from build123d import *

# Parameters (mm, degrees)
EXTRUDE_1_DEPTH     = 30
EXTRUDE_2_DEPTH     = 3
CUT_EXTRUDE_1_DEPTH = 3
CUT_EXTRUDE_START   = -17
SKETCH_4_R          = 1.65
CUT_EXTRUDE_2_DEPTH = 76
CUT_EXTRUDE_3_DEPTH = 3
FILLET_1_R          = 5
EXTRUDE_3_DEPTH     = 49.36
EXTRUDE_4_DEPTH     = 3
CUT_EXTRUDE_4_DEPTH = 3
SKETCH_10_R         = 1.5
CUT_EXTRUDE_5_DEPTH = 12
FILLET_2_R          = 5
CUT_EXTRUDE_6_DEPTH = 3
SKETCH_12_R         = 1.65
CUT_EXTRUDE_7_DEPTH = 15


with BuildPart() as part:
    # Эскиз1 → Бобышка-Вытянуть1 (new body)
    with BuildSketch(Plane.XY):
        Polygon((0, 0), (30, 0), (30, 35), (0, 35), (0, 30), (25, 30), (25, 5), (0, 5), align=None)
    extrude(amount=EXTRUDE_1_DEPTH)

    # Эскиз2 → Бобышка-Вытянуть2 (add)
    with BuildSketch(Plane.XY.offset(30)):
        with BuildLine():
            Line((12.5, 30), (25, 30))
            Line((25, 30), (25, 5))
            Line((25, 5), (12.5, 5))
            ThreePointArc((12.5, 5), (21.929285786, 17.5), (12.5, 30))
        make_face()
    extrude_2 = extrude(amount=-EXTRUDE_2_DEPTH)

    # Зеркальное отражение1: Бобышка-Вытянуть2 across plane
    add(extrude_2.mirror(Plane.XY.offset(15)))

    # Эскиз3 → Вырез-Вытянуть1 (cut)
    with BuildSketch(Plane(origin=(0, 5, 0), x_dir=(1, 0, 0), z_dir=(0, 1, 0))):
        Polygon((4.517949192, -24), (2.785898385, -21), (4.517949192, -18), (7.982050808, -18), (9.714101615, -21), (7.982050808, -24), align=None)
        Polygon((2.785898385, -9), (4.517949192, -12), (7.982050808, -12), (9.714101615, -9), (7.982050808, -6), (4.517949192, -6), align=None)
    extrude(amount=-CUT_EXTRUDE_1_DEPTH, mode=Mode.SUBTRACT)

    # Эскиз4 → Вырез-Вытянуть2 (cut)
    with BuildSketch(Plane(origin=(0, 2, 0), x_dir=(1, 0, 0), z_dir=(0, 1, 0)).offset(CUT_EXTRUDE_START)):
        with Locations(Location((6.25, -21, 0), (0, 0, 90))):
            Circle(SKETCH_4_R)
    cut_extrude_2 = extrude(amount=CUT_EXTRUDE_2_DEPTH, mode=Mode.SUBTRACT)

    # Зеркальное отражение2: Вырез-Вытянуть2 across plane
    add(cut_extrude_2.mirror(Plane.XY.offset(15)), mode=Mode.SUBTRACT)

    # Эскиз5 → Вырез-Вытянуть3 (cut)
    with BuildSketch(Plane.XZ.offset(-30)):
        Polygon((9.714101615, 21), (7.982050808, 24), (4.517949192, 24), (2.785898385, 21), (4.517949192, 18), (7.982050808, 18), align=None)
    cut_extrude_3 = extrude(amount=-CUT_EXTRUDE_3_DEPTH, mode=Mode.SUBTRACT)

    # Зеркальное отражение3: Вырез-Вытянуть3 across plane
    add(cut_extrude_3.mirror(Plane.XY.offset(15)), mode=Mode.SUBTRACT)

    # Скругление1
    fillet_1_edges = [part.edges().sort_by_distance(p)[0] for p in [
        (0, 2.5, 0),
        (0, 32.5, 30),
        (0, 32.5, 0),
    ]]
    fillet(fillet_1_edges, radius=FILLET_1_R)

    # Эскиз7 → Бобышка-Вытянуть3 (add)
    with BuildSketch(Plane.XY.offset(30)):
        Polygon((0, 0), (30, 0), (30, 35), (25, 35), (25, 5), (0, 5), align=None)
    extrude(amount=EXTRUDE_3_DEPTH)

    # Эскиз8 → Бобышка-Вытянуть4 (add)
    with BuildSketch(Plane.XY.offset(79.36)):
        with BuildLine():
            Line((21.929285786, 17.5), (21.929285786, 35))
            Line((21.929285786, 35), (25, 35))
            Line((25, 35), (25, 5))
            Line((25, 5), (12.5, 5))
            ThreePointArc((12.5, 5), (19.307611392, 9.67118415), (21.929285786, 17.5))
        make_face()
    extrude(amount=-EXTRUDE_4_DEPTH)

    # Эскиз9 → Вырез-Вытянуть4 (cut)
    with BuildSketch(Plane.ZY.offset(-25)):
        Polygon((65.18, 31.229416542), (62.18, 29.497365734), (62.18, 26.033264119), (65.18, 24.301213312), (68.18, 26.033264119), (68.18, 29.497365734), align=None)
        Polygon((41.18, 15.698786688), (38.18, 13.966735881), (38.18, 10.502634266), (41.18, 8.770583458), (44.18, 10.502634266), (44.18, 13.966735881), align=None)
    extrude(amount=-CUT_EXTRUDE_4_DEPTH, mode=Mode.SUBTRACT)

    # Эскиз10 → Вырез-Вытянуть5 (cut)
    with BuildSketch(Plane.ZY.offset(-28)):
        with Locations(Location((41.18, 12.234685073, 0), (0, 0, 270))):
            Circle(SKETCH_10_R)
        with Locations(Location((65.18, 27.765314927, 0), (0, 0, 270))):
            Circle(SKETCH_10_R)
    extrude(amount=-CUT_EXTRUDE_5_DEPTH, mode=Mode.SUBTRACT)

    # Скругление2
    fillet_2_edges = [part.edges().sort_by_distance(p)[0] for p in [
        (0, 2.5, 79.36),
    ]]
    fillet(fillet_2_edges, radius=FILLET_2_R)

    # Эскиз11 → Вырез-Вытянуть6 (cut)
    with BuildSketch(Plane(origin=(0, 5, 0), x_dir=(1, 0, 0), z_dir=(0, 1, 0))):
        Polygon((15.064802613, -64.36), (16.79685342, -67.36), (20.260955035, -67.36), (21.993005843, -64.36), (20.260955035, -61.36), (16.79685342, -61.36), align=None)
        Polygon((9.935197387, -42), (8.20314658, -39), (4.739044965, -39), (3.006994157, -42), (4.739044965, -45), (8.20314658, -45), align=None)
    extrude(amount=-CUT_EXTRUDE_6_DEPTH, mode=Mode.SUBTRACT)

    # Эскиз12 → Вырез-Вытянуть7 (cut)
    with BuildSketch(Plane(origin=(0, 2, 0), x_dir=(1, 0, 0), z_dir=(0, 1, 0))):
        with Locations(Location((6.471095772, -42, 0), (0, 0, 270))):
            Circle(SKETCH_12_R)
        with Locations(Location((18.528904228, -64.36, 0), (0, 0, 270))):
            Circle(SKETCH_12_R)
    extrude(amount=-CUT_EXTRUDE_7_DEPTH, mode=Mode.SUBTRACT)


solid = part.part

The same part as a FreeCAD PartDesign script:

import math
import FreeCAD as App
import Part
import Sketcher
from FreeCAD import Vector
Q = App.Units.Quantity


def edges_at(feature, points):
    """Names of the edges that pass closest to the given points."""
    edges = feature.Shape.Edges
    near = lambda p: min(range(len(edges)), key=lambda i: edges[i].distToShape(Part.Vertex(*p))[0])
    return sorted({f"Edge{near(p) + 1}" for p in points})

doc = App.newDocument("Part")
params = doc.addObject("Spreadsheet::Sheet", "Params")
for row, (alias, value) in enumerate([
    ("sketch1_width", "30 mm"),
    ("sketch1_width2", "25 mm"),
    ("sketch1_height", "35 mm"),
    ("pad1_length", "30 mm"),
    ("sketch2_radius", "13 mm"),
    ("sketch2_height", "25 mm"),
    ("sketch2_width", "12.5 mm"),
    ("pad2_length", "3 mm"),
    ("pocket1_length", "3 mm"),
    ("sketch4_diameter", "3.3 mm"),
    ("pocket2_length", "76 mm"),
    ("pocket3_length", "3 mm"),
    ("fillet_radius", "5 mm"),
    ("sketch6_width", "30 mm"),
    ("sketch6_width2", "5 mm"),
    ("pad3_length", "49.36 mm"),
    ("sketch7_radius", "13 mm"),
    ("sketch7_height", "30 mm"),
    ("sketch7_width", "12.5 mm"),
    ("sketch7_height2", "17.5 mm"),
    ("pad4_length", "3 mm"),
    ("pocket4_length", "3 mm"),
    ("sketch9_diameter", "3 mm"),
    ("pocket5_length", "12 mm"),
    ("fillet2_radius", "5 mm"),
    ("pocket6_length", "3 mm"),
    ("sketch11_diameter", "3.3 mm"),
    ("pocket7_length", "15 mm"),
], start=1):
    params.set(f"A{row}", alias)
    params.set(f"B{row}", "=" + value)
    params.setAlias(f"B{row}", alias)

body = doc.addObject("PartDesign::Body", "Body")

# Sketch on XY plane
sketch1 = doc.addObject("Sketcher::SketchObject", "Sketch")
body.addObject(sketch1)
sketch1.AttachmentSupport = (doc.XY_Plane, [""])
sketch1.MapMode = "FlatFace"
sketch1.addGeometry([
    Part.LineSegment(Vector(0, 0, 0), Vector(30, 0, 0)),  # 0
    Part.LineSegment(Vector(30, 0, 0), Vector(30, 35, 0)),  # 1
    Part.LineSegment(Vector(30, 35, 0), Vector(0, 35, 0)),  # 2
    Part.LineSegment(Vector(0, 35, 0), Vector(0, 30, 0)),  # 3
    Part.LineSegment(Vector(0, 30, 0), Vector(25, 30, 0)),  # 4
    Part.LineSegment(Vector(25, 30, 0), Vector(25, 5, 0)),  # 5
    Part.LineSegment(Vector(25, 5, 0), Vector(0, 5, 0)),  # 6
    Part.LineSegment(Vector(0, 5, 0), Vector(0, 0, 0)),  # 7
], False)
sketch1.addConstraint([
    Sketcher.Constraint("Coincident", 0, 2, 1, 1),
    Sketcher.Constraint("Coincident", 1, 2, 2, 1),
    Sketcher.Constraint("Coincident", 2, 2, 3, 1),
    Sketcher.Constraint("Coincident", 3, 2, 4, 1),
    Sketcher.Constraint("Coincident", 4, 2, 5, 1),
    Sketcher.Constraint("Coincident", 5, 2, 6, 1),
    Sketcher.Constraint("Coincident", 6, 2, 7, 1),
    Sketcher.Constraint("Coincident", 7, 2, 0, 1),
    Sketcher.Constraint("Horizontal", 0),
    Sketcher.Constraint("Vertical", 1),
    Sketcher.Constraint("Horizontal", 2),
    Sketcher.Constraint("Vertical", 3),
    Sketcher.Constraint("Horizontal", 4),
    Sketcher.Constraint("Vertical", 5),
    Sketcher.Constraint("Horizontal", 6),
    Sketcher.Constraint("Vertical", 7),
    Sketcher.Constraint("Coincident", 7, 2, -1, 1),
    Sketcher.Constraint("PointOnObject", 2, 2, -2),
    Sketcher.Constraint("Equal", 6, 5),
    Sketcher.Constraint("Equal", 3, 7),
    Sketcher.Constraint("DistanceX", 0, 1, 0, 2, 30.0),
    Sketcher.Constraint("DistanceX", 4, 1, 4, 2, 25.0),
    Sketcher.Constraint("DistanceY", 1, 1, 1, 2, 35.0),
])
sketch1.setExpression("Constraints[20]", "Params.sketch1_width")
sketch1.setExpression("Constraints[21]", "Params.sketch1_width2")
sketch1.setExpression("Constraints[22]", "Params.sketch1_height")
pad1 = doc.addObject("PartDesign::Pad", "Pad")
body.addObject(pad1)
pad1.Profile = sketch1
pad1.setExpression("Length", "Params.pad1_length")

# Sketch on XY plane
sketch2 = doc.addObject("Sketcher::SketchObject", "Sketch001")
body.addObject(sketch2)
sketch2.AttachmentSupport = (doc.XY_Plane, [""])
sketch2.MapMode = "FlatFace"
sketch2.AttachmentOffset = App.Placement(Vector(0, 0, 30), App.Rotation())
sketch2.addGeometry([
    Part.LineSegment(Vector(25, 30, 0), Vector(12, 30, 0)),
    Part.ArcOfCircle(Part.Circle(Vector(9, 18, 0), Vector(0, 0, 1), 13), math.radians(-74), math.radians(74)),
    Part.LineSegment(Vector(12, 5, 0), Vector(25, 5, 0)),
    Part.LineSegment(Vector(25, 5, 0), Vector(25, 30, 0)),
], False)
sketch2.addConstraint([
    Sketcher.Constraint("Coincident", 0, 2, 1, 2),
    Sketcher.Constraint("Coincident", 1, 1, 2, 1),
    Sketcher.Constraint("Coincident", 2, 2, 3, 1),
    Sketcher.Constraint("Coincident", 3, 2, 0, 1),
    Sketcher.Constraint("Horizontal", 0),
    Sketcher.Constraint("Horizontal", 2),
    Sketcher.Constraint("Vertical", 3),
    Sketcher.Constraint("Vertical", 0, 2, 1, 1),
    Sketcher.Constraint("Radius", 1, 13.0),
    Sketcher.Constraint("DistanceY", 3, 1, 3, 2, 25.0),
    Sketcher.Constraint("DistanceX", 0, 2, 0, 1, 12.5),
    Sketcher.Constraint("DistanceY", -1, 1, 0, 2, 30.0),
    Sketcher.Constraint("DistanceX", -1, 1, 2, 2, 25.0),
])
sketch2.setExpression("Constraints[8]", "Params.sketch2_radius")
sketch2.setExpression("Constraints[9]", "Params.sketch2_height")
sketch2.setExpression("Constraints[10]", "Params.sketch2_width")
pad2 = doc.addObject("PartDesign::Pad", "Pad001")
body.addObject(pad2)
pad2.Profile = sketch2
pad2.setExpression("Length", "Params.pad2_length")
pad2.Reversed = True
doc.recompute()

datumplane = doc.addObject("PartDesign::Plane", "DatumPlane")
body.addObject(datumplane)
datumplane.AttachmentSupport = (doc.XY_Plane, [""])
datumplane.MapMode = "FlatFace"
datumplane.AttachmentOffset = App.Placement(Vector(0, 0, 15), App.Rotation())
mirrored = doc.addObject("PartDesign::Mirrored", "Mirrored")
body.addObject(mirrored)
mirrored.Originals = [pad2]
mirrored.MirrorPlane = (datumplane, [""])
body.Tip = mirrored

# Sketch on XZ plane
sketch3 = doc.addObject("Sketcher::SketchObject", "Sketch002")
body.addObject(sketch3)
sketch3.AttachmentSupport = (doc.XZ_Plane, [""])
sketch3.MapMode = "FlatFace"
sketch3.AttachmentOffset = App.Placement(Vector(0, 0, -5), App.Rotation())
sketch3.addGeometry([
    Part.LineSegment(Vector(2.8, 21, 0), Vector(4.5, 24, 0)),  # 0
    Part.LineSegment(Vector(4.5, 24, 0), Vector(8, 24, 0)),  # 1
    Part.LineSegment(Vector(8, 24, 0), Vector(9.7, 21, 0)),  # 2
    Part.LineSegment(Vector(9.7, 21, 0), Vector(8, 18, 0)),  # 3
    Part.LineSegment(Vector(8, 18, 0), Vector(4.5, 18, 0)),  # 4
    Part.LineSegment(Vector(4.5, 18, 0), Vector(2.8, 21, 0)),  # 5
    Part.LineSegment(Vector(2.8, 9, 0), Vector(4.5, 12, 0)),  # 6
    Part.LineSegment(Vector(4.5, 12, 0), Vector(8, 12, 0)),  # 7
    Part.LineSegment(Vector(8, 12, 0), Vector(9.7, 9, 0)),  # 8
    Part.LineSegment(Vector(9.7, 9, 0), Vector(8, 6, 0)),  # 9
    Part.LineSegment(Vector(8, 6, 0), Vector(4.5, 6, 0)),  # 10
    Part.LineSegment(Vector(4.5, 6, 0), Vector(2.8, 9, 0)),  # 11
], False)
sketch3.addConstraint([
    Sketcher.Constraint("Coincident", 0, 2, 1, 1),
    Sketcher.Constraint("Coincident", 1, 2, 2, 1),
    Sketcher.Constraint("Coincident", 2, 2, 3, 1),
    Sketcher.Constraint("Coincident", 3, 2, 4, 1),
    Sketcher.Constraint("Coincident", 4, 2, 5, 1),
    Sketcher.Constraint("Coincident", 5, 2, 0, 1),
    Sketcher.Constraint("Coincident", 6, 2, 7, 1),
    Sketcher.Constraint("Coincident", 7, 2, 8, 1),
    Sketcher.Constraint("Coincident", 8, 2, 9, 1),
    Sketcher.Constraint("Coincident", 9, 2, 10, 1),
    Sketcher.Constraint("Coincident", 10, 2, 11, 1),
    Sketcher.Constraint("Coincident", 11, 2, 6, 1),
    Sketcher.Constraint("Horizontal", 1),
    Sketcher.Constraint("Horizontal", 4),
    Sketcher.Constraint("Horizontal", 7),
    Sketcher.Constraint("Horizontal", 10),
    Sketcher.Constraint("Parallel", 0, 3),
    Sketcher.Constraint("Parallel", 2, 5),
    Sketcher.Constraint("Parallel", 3, 6),
    Sketcher.Constraint("Parallel", 5, 8),
    Sketcher.Constraint("Parallel", 6, 9),
    Sketcher.Constraint("Parallel", 8, 11),
    Sketcher.Constraint("Horizontal", 2, 2, 5, 2),
    Sketcher.Constraint("Horizontal", 8, 2, 11, 2),
    Sketcher.Constraint("Vertical", 1, 2, 3, 2),
    Sketcher.Constraint("Vertical", 0, 2, 4, 2),
    Sketcher.Constraint("Vertical", 4, 2, 6, 2),
    Sketcher.Constraint("Vertical", 3, 2, 7, 2),
    Sketcher.Constraint("Vertical", 2, 2, 8, 2),
    Sketcher.Constraint("Vertical", 7, 2, 9, 2),
    Sketcher.Constraint("Angle", 0, Q("60 deg")),
    Sketcher.Constraint("DistanceY", -1, 1, 0, 2, 24.0),
    Sketcher.Constraint("DistanceY", -1, 1, 2, 2, 21.0),
    Sketcher.Constraint("DistanceY", -1, 1, 6, 2, 12.0),
    Sketcher.Constraint("DistanceX", 1, 1, 1, 2, 3.464102),
    Sketcher.Constraint("DistanceX", -1, 1, 2, 2, 9.714102),
])
pocket1 = doc.addObject("PartDesign::Pocket", "Pocket")
body.addObject(pocket1)
pocket1.Profile = sketch3
pocket1.setExpression("Length", "Params.pocket1_length")
pocket1.Reversed = True

# Sketch on XZ plane
sketch4 = doc.addObject("Sketcher::SketchObject", "Sketch003")
body.addObject(sketch4)
sketch4.AttachmentSupport = (doc.XZ_Plane, [""])
sketch4.MapMode = "FlatFace"
sketch4.AttachmentOffset = App.Placement(Vector(0, 0, 15), App.Rotation())
sketch4.addGeometry(Part.Circle(Vector(6.2, 21, 0), Vector(0, 0, 1), 1.6), False)
sketch4.addConstraint([
    Sketcher.Constraint("Diameter", 0, 3.3),
    Sketcher.Constraint("DistanceY", -1, 1, 0, 3, 21.0),
    Sketcher.Constraint("DistanceX", -1, 1, 0, 3, 6.25),
])
sketch4.setExpression("Constraints[0]", "Params.sketch4_diameter")
pocket2 = doc.addObject("PartDesign::Pocket", "Pocket001")
body.addObject(pocket2)
pocket2.Profile = sketch4
pocket2.setExpression("Length", "Params.pocket2_length")
doc.recompute()

datumplane2 = doc.addObject("PartDesign::Plane", "DatumPlane001")
body.addObject(datumplane2)
datumplane2.AttachmentSupport = (doc.XY_Plane, [""])
datumplane2.MapMode = "FlatFace"
datumplane2.AttachmentOffset = App.Placement(Vector(0, 0, 15), App.Rotation())
mirrored2 = doc.addObject("PartDesign::Mirrored", "Mirrored001")
body.addObject(mirrored2)
mirrored2.Originals = [pocket2]
mirrored2.MirrorPlane = (datumplane2, [""])
body.Tip = mirrored2

# Sketch on XZ plane
sketch5 = doc.addObject("Sketcher::SketchObject", "Sketch004")
body.addObject(sketch5)
sketch5.AttachmentSupport = (doc.XZ_Plane, [""])
sketch5.MapMode = "FlatFace"
sketch5.AttachmentOffset = App.Placement(Vector(0, 0, -30), App.Rotation())
sketch5.addGeometry([
    Part.LineSegment(Vector(9.7, 21, 0), Vector(8, 24, 0)),  # 0
    Part.LineSegment(Vector(8, 24, 0), Vector(4.5, 24, 0)),  # 1
    Part.LineSegment(Vector(4.5, 24, 0), Vector(2.8, 21, 0)),  # 2
    Part.LineSegment(Vector(2.8, 21, 0), Vector(4.5, 18, 0)),  # 3
    Part.LineSegment(Vector(4.5, 18, 0), Vector(8, 18, 0)),  # 4
    Part.LineSegment(Vector(8, 18, 0), Vector(9.7, 21, 0)),  # 5
], False)
sketch5.addConstraint([
    Sketcher.Constraint("Coincident", 0, 2, 1, 1),
    Sketcher.Constraint("Coincident", 1, 2, 2, 1),
    Sketcher.Constraint("Coincident", 2, 2, 3, 1),
    Sketcher.Constraint("Coincident", 3, 2, 4, 1),
    Sketcher.Constraint("Coincident", 4, 2, 5, 1),
    Sketcher.Constraint("Coincident", 5, 2, 0, 1),
    Sketcher.Constraint("Horizontal", 1),
    Sketcher.Constraint("Horizontal", 4),
    Sketcher.Constraint("Parallel", 0, 3),
    Sketcher.Constraint("Parallel", 2, 5),
    Sketcher.Constraint("Horizontal", 2, 2, 5, 2),
    Sketcher.Constraint("Vertical", 1, 2, 3, 2),
    Sketcher.Constraint("Vertical", 0, 2, 4, 2),
    Sketcher.Constraint("Angle", 0, Q("120 deg")),
    Sketcher.Constraint("DistanceY", -1, 1, 0, 2, 24.0),
    Sketcher.Constraint("DistanceY", -1, 1, 2, 2, 21.0),
    Sketcher.Constraint("DistanceX", 1, 2, 1, 1, 3.464102),
    Sketcher.Constraint("DistanceX", -1, 1, 2, 2, 2.785898),
])
pocket3 = doc.addObject("PartDesign::Pocket", "Pocket002")
body.addObject(pocket3)
pocket3.Profile = sketch5
pocket3.setExpression("Length", "Params.pocket3_length")
doc.recompute()

datumplane3 = doc.addObject("PartDesign::Plane", "DatumPlane002")
body.addObject(datumplane3)
datumplane3.AttachmentSupport = (doc.XY_Plane, [""])
datumplane3.MapMode = "FlatFace"
datumplane3.AttachmentOffset = App.Placement(Vector(0, 0, 15), App.Rotation())
mirrored3 = doc.addObject("PartDesign::Mirrored", "Mirrored002")
body.addObject(mirrored3)
mirrored3.Originals = [pocket3]
mirrored3.MirrorPlane = (datumplane3, [""])
body.Tip = mirrored3
doc.recompute()

fillet = doc.addObject("PartDesign::Fillet", "Fillet")
body.addObject(fillet)
fillet.Base = (mirrored3, edges_at(mirrored3, [(0, 2.5, 0), (0, 32.5, 30), (0, 32.5, 0)]))
fillet.setExpression("Radius", "Params.fillet_radius")

# Sketch on XY plane
sketch6 = doc.addObject("Sketcher::SketchObject", "Sketch005")
body.addObject(sketch6)
sketch6.AttachmentSupport = (doc.XY_Plane, [""])
sketch6.MapMode = "FlatFace"
sketch6.AttachmentOffset = App.Placement(Vector(0, 0, 30), App.Rotation())
sketch6.addGeometry([
    Part.LineSegment(Vector(0, 0, 0), Vector(30, 0, 0)),  # 0
    Part.LineSegment(Vector(30, 0, 0), Vector(30, 35, 0)),  # 1
    Part.LineSegment(Vector(30, 35, 0), Vector(25, 35, 0)),  # 2
    Part.LineSegment(Vector(25, 35, 0), Vector(25, 5, 0)),  # 3
    Part.LineSegment(Vector(25, 5, 0), Vector(0, 5, 0)),  # 4
    Part.LineSegment(Vector(0, 5, 0), Vector(0, 0, 0)),  # 5
], False)
sketch6.addConstraint([
    Sketcher.Constraint("Coincident", 0, 2, 1, 1),
    Sketcher.Constraint("Coincident", 1, 2, 2, 1),
    Sketcher.Constraint("Coincident", 2, 2, 3, 1),
    Sketcher.Constraint("Coincident", 3, 2, 4, 1),
    Sketcher.Constraint("Coincident", 4, 2, 5, 1),
    Sketcher.Constraint("Coincident", 5, 2, 0, 1),
    Sketcher.Constraint("Horizontal", 0),
    Sketcher.Constraint("Vertical", 1),
    Sketcher.Constraint("Horizontal", 2),
    Sketcher.Constraint("Vertical", 3),
    Sketcher.Constraint("Horizontal", 4),
    Sketcher.Constraint("Vertical", 5),
    Sketcher.Constraint("Coincident", 5, 2, -1, 1),
    Sketcher.Constraint("Equal", 0, 3),
    Sketcher.Constraint("Equal", 2, 5),
    Sketcher.Constraint("DistanceX", 0, 1, 0, 2, 30.0),
    Sketcher.Constraint("DistanceX", 2, 2, 2, 1, 5.0),
])
sketch6.setExpression("Constraints[15]", "Params.sketch6_width")
sketch6.setExpression("Constraints[16]", "Params.sketch6_width2")
pad3 = doc.addObject("PartDesign::Pad", "Pad002")
body.addObject(pad3)
pad3.Profile = sketch6
pad3.setExpression("Length", "Params.pad3_length")

# Sketch on XY plane
sketch7 = doc.addObject("Sketcher::SketchObject", "Sketch006")
body.addObject(sketch7)
sketch7.AttachmentSupport = (doc.XY_Plane, [""])
sketch7.MapMode = "FlatFace"
sketch7.AttachmentOffset = App.Placement(Vector(0, 0, 79.36), App.Rotation())
sketch7.addGeometry([
    Part.LineSegment(Vector(21.9, 35, 0), Vector(21.9, 17.5, 0)),  # 0
    Part.ArcOfCircle(Part.Circle(Vector(8.9, 17.5, 0), Vector(0, 0, 1), 13), math.radians(-74), math.radians(0)),  # 1
    Part.LineSegment(Vector(12.5, 5, 0), Vector(25, 5, 0)),  # 2
    Part.LineSegment(Vector(25, 5, 0), Vector(25, 35, 0)),  # 3
    Part.LineSegment(Vector(25, 35, 0), Vector(21.9, 35, 0)),  # 4
], False)
sketch7.addConstraint([
    Sketcher.Constraint("Tangent", 0, 2, 1, 2),
    Sketcher.Constraint("Coincident", 1, 1, 2, 1),
    Sketcher.Constraint("Coincident", 2, 2, 3, 1),
    Sketcher.Constraint("Coincident", 3, 2, 4, 1),
    Sketcher.Constraint("Coincident", 4, 2, 0, 1),
    Sketcher.Constraint("Vertical", 0),
    Sketcher.Constraint("Horizontal", 2),
    Sketcher.Constraint("Vertical", 3),
    Sketcher.Constraint("Horizontal", 4),
    Sketcher.Constraint("Radius", 1, 13.0),
    Sketcher.Constraint("DistanceY", 3, 1, 3, 2, 30.0),
    Sketcher.Constraint("DistanceX", 2, 1, 2, 2, 12.5),
    Sketcher.Constraint("DistanceY", 0, 2, 0, 1, 17.5),
    Sketcher.Constraint("DistanceY", -1, 1, 1, 1, 5.0),
    Sketcher.Constraint("DistanceX", -1, 1, 2, 2, 25.0),
])
sketch7.setExpression("Constraints[9]", "Params.sketch7_radius")
sketch7.setExpression("Constraints[10]", "Params.sketch7_height")
sketch7.setExpression("Constraints[11]", "Params.sketch7_width")
sketch7.setExpression("Constraints[12]", "Params.sketch7_height2")
pad4 = doc.addObject("PartDesign::Pad", "Pad003")
body.addObject(pad4)
pad4.Profile = sketch7
pad4.setExpression("Length", "Params.pad4_length")
pad4.Reversed = True

# Sketch on YZ plane
sketch8 = doc.addObject("Sketcher::SketchObject", "Sketch007")
body.addObject(sketch8)
sketch8.AttachmentSupport = (doc.YZ_Plane, [""])
sketch8.MapMode = "FlatFace"
sketch8.AttachmentOffset = App.Placement(Vector(0, 0, 25), App.Rotation())
sketch8.addGeometry([
    Part.LineSegment(Vector(31.2, 65.2, 0), Vector(29.5, 62.2, 0)),  # 0
    Part.LineSegment(Vector(29.5, 62.2, 0), Vector(26, 62.2, 0)),  # 1
    Part.LineSegment(Vector(26, 62.2, 0), Vector(24.3, 65.2, 0)),  # 2
    Part.LineSegment(Vector(24.3, 65.2, 0), Vector(26, 68.2, 0)),  # 3
    Part.LineSegment(Vector(26, 68.2, 0), Vector(29.5, 68.2, 0)),  # 4
    Part.LineSegment(Vector(29.5, 68.2, 0), Vector(31.2, 65.2, 0)),  # 5
    Part.LineSegment(Vector(15.7, 41.2, 0), Vector(14, 38.2, 0)),  # 6
    Part.LineSegment(Vector(14, 38.2, 0), Vector(10.5, 38.2, 0)),  # 7
    Part.LineSegment(Vector(10.5, 38.2, 0), Vector(8.8, 41.2, 0)),  # 8
    Part.LineSegment(Vector(8.8, 41.2, 0), Vector(10.5, 44.2, 0)),  # 9
    Part.LineSegment(Vector(10.5, 44.2, 0), Vector(14, 44.2, 0)),  # 10
    Part.LineSegment(Vector(14, 44.2, 0), Vector(15.7, 41.2, 0)),  # 11
], False)
sketch8.addConstraint([
    Sketcher.Constraint("Coincident", 0, 2, 1, 1),
    Sketcher.Constraint("Coincident", 1, 2, 2, 1),
    Sketcher.Constraint("Coincident", 2, 2, 3, 1),
    Sketcher.Constraint("Coincident", 3, 2, 4, 1),
    Sketcher.Constraint("Coincident", 4, 2, 5, 1),
    Sketcher.Constraint("Coincident", 5, 2, 0, 1),
    Sketcher.Constraint("Coincident", 6, 2, 7, 1),
    Sketcher.Constraint("Coincident", 7, 2, 8, 1),
    Sketcher.Constraint("Coincident", 8, 2, 9, 1),
    Sketcher.Constraint("Coincident", 9, 2, 10, 1),
    Sketcher.Constraint("Coincident", 10, 2, 11, 1),
    Sketcher.Constraint("Coincident", 11, 2, 6, 1),
    Sketcher.Constraint("Horizontal", 1),
    Sketcher.Constraint("Horizontal", 4),
    Sketcher.Constraint("Horizontal", 7),
    Sketcher.Constraint("Horizontal", 10),
    Sketcher.Constraint("Parallel", 0, 3),
    Sketcher.Constraint("Parallel", 2, 5),
    Sketcher.Constraint("Parallel", 3, 6),
    Sketcher.Constraint("Parallel", 5, 8),
    Sketcher.Constraint("Parallel", 6, 9),
    Sketcher.Constraint("Parallel", 8, 11),
    Sketcher.Constraint("Horizontal", 2, 2, 5, 2),
    Sketcher.Constraint("Horizontal", 8, 2, 11, 2),
    Sketcher.Constraint("Vertical", 1, 2, 3, 2),
    Sketcher.Constraint("Vertical", 0, 2, 4, 2),
    Sketcher.Constraint("Vertical", 7, 2, 9, 2),
    Sketcher.Constraint("Equal", 4, 7),
    Sketcher.Constraint("Equal", 5, 6),
    Sketcher.Constraint("Angle", 0, Q("-120 deg")),
    Sketcher.Constraint("DistanceY", 1, 2, 2, 2, 3.0),
    Sketcher.Constraint("DistanceY", 6, 2, 1, 2, 24.0),
    Sketcher.Constraint("DistanceY", -1, 1, 0, 2, 62.18),
    Sketcher.Constraint("DistanceX", 1, 2, 1, 1, 3.464102),
    Sketcher.Constraint("DistanceX", 6, 2, 1, 2, 12.066528),
    Sketcher.Constraint("DistanceX", -1, 1, 0, 2, 29.497366),
])
pocket4 = doc.addObject("PartDesign::Pocket", "Pocket003")
body.addObject(pocket4)
pocket4.Profile = sketch8
pocket4.setExpression("Length", "Params.pocket4_length")
pocket4.Reversed = True

# Sketch on YZ plane
sketch9 = doc.addObject("Sketcher::SketchObject", "Sketch008")
body.addObject(sketch9)
sketch9.AttachmentSupport = (doc.YZ_Plane, [""])
sketch9.MapMode = "FlatFace"
sketch9.AttachmentOffset = App.Placement(Vector(0, 0, 28), App.Rotation())
sketch9.addGeometry([
    Part.Circle(Vector(12.2, 41.2, 0), Vector(0, 0, 1), 1.5),
    Part.Circle(Vector(27.8, 65.2, 0), Vector(0, 0, 1), 1.5),
], False)
sketch9.addConstraint([
    Sketcher.Constraint("Equal", 0, 1),
    Sketcher.Constraint("Diameter", 0, 3.0),
    Sketcher.Constraint("DistanceY", 0, 3, 1, 3, 24.0),
    Sketcher.Constraint("DistanceY", -1, 1, 0, 3, 41.18),
    Sketcher.Constraint("DistanceX", 0, 3, 1, 3, 15.53063),
    Sketcher.Constraint("DistanceX", -1, 1, 0, 3, 12.234685),
])
sketch9.setExpression("Constraints[1]", "Params.sketch9_diameter")
pocket5 = doc.addObject("PartDesign::Pocket", "Pocket004")
body.addObject(pocket5)
pocket5.Profile = sketch9
pocket5.setExpression("Length", "Params.pocket5_length")
pocket5.Reversed = True
doc.recompute()

fillet2 = doc.addObject("PartDesign::Fillet", "Fillet001")
body.addObject(fillet2)
fillet2.Base = (pocket5, edges_at(pocket5, [(0, 2.5, 79.36)]))
fillet2.setExpression("Radius", "Params.fillet2_radius")

# Sketch on XZ plane
sketch10 = doc.addObject("Sketcher::SketchObject", "Sketch009")
body.addObject(sketch10)
sketch10.AttachmentSupport = (doc.XZ_Plane, [""])
sketch10.MapMode = "FlatFace"
sketch10.AttachmentOffset = App.Placement(Vector(0, 0, -5), App.Rotation())
sketch10.addGeometry([
    Part.LineSegment(Vector(15.1, 64.4, 0), Vector(16.8, 67.4, 0)),  # 0
    Part.LineSegment(Vector(16.8, 67.4, 0), Vector(20.3, 67.4, 0)),  # 1
    Part.LineSegment(Vector(20.3, 67.4, 0), Vector(22, 64.4, 0)),  # 2
    Part.LineSegment(Vector(22, 64.4, 0), Vector(20.3, 61.4, 0)),  # 3
    Part.LineSegment(Vector(20.3, 61.4, 0), Vector(16.8, 61.4, 0)),  # 4
    Part.LineSegment(Vector(16.8, 61.4, 0), Vector(15.1, 64.4, 0)),  # 5
    Part.LineSegment(Vector(9.9, 42, 0), Vector(8.2, 39, 0)),  # 6
    Part.LineSegment(Vector(8.2, 39, 0), Vector(4.7, 39, 0)),  # 7
    Part.LineSegment(Vector(4.7, 39, 0), Vector(3, 42, 0)),  # 8
    Part.LineSegment(Vector(3, 42, 0), Vector(4.7, 45, 0)),  # 9
    Part.LineSegment(Vector(4.7, 45, 0), Vector(8.2, 45, 0)),  # 10
    Part.LineSegment(Vector(8.2, 45, 0), Vector(9.9, 42, 0)),  # 11
], False)
sketch10.addConstraint([
    Sketcher.Constraint("Coincident", 0, 2, 1, 1),
    Sketcher.Constraint("Coincident", 1, 2, 2, 1),
    Sketcher.Constraint("Coincident", 2, 2, 3, 1),
    Sketcher.Constraint("Coincident", 3, 2, 4, 1),
    Sketcher.Constraint("Coincident", 4, 2, 5, 1),
    Sketcher.Constraint("Coincident", 5, 2, 0, 1),
    Sketcher.Constraint("Coincident", 6, 2, 7, 1),
    Sketcher.Constraint("Coincident", 7, 2, 8, 1),
    Sketcher.Constraint("Coincident", 8, 2, 9, 1),
    Sketcher.Constraint("Coincident", 9, 2, 10, 1),
    Sketcher.Constraint("Coincident", 10, 2, 11, 1),
    Sketcher.Constraint("Coincident", 11, 2, 6, 1),
    Sketcher.Constraint("Horizontal", 1),
    Sketcher.Constraint("Horizontal", 4),
    Sketcher.Constraint("Horizontal", 7),
    Sketcher.Constraint("Horizontal", 10),
    Sketcher.Constraint("Parallel", 0, 3),
    Sketcher.Constraint("Parallel", 2, 5),
    Sketcher.Constraint("Parallel", 3, 6),
    Sketcher.Constraint("Parallel", 5, 8),
    Sketcher.Constraint("Parallel", 6, 9),
    Sketcher.Constraint("Parallel", 8, 11),
    Sketcher.Constraint("Horizontal", 2, 2, 5, 2),
    Sketcher.Constraint("Horizontal", 8, 2, 11, 2),
    Sketcher.Constraint("Vertical", 1, 2, 3, 2),
    Sketcher.Constraint("Vertical", 0, 2, 4, 2),
    Sketcher.Constraint("Vertical", 7, 2, 9, 2),
    Sketcher.Constraint("Equal", 4, 7),
    Sketcher.Constraint("Equal", 5, 6),
    Sketcher.Constraint("Angle", 0, Q("60 deg")),
    Sketcher.Constraint("DistanceY", -1, 1, 6, 2, 39.0),
    Sketcher.Constraint("DistanceY", -1, 1, 8, 2, 42.0),
    Sketcher.Constraint("DistanceY", -1, 1, 0, 2, 67.36),
    Sketcher.Constraint("DistanceX", 1, 1, 1, 2, 3.464102),
    Sketcher.Constraint("DistanceX", 6, 2, 3, 2, 12.057808),
    Sketcher.Constraint("DistanceX", -1, 1, 0, 2, 16.796853),
])
pocket6 = doc.addObject("PartDesign::Pocket", "Pocket005")
body.addObject(pocket6)
pocket6.Profile = sketch10
pocket6.setExpression("Length", "Params.pocket6_length")
pocket6.Reversed = True

# Sketch on XZ plane
sketch11 = doc.addObject("Sketcher::SketchObject", "Sketch010")
body.addObject(sketch11)
sketch11.AttachmentSupport = (doc.XZ_Plane, [""])
sketch11.MapMode = "FlatFace"
sketch11.AttachmentOffset = App.Placement(Vector(0, 0, -2), App.Rotation())
sketch11.addGeometry([
    Part.Circle(Vector(6.5, 42, 0), Vector(0, 0, 1), 1.6),
    Part.Circle(Vector(18.5, 64.4, 0), Vector(0, 0, 1), 1.6),
], False)
sketch11.addConstraint([
    Sketcher.Constraint("Equal", 0, 1),
    Sketcher.Constraint("Diameter", 0, 3.3),
    Sketcher.Constraint("DistanceY", -1, 1, 0, 3, 42.0),
    Sketcher.Constraint("DistanceY", -1, 1, 1, 3, 64.36),
    Sketcher.Constraint("DistanceX", 0, 3, 1, 3, 12.057808),
    Sketcher.Constraint("DistanceX", -1, 1, 0, 3, 6.471096),
])
sketch11.setExpression("Constraints[1]", "Params.sketch11_diameter")
pocket7 = doc.addObject("PartDesign::Pocket", "Pocket006")
body.addObject(pocket7)
pocket7.Profile = sketch11
pocket7.setExpression("Length", "Params.pocket7_length")
pocket7.Reversed = True

doc.recompute()
